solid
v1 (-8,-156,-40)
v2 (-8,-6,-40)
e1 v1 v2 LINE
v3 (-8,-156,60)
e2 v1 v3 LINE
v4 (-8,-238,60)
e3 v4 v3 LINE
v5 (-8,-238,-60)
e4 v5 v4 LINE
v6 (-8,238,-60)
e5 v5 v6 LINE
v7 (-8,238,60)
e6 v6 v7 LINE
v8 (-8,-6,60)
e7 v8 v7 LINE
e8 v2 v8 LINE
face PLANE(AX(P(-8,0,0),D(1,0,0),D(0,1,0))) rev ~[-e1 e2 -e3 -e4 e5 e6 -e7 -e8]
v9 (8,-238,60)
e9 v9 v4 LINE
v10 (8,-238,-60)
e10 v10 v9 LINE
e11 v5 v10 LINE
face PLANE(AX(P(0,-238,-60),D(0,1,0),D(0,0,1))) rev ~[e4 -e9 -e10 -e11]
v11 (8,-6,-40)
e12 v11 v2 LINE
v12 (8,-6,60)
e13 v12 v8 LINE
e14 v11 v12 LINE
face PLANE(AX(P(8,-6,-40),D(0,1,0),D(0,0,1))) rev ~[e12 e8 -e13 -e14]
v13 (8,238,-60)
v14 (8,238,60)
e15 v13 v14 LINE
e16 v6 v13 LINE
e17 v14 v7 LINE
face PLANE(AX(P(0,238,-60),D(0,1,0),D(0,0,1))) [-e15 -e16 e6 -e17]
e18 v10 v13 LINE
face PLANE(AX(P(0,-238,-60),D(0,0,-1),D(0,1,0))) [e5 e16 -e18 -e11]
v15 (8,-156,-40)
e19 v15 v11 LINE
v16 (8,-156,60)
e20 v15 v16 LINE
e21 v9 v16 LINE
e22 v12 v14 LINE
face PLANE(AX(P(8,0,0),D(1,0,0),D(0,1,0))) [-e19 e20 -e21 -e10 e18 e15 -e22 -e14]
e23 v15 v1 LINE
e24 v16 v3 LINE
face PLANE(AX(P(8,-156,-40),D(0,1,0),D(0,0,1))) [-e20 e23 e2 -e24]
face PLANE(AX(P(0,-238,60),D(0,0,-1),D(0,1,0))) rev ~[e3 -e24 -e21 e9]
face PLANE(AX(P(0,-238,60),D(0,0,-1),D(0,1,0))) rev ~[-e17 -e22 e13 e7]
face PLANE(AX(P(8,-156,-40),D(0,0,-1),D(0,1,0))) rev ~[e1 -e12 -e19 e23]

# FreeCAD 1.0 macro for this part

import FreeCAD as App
import Part
import Sketcher

V = App.Vector
Q = App.Units.Quantity


def add_polygon(sketch, points):
    """Adds a closed chain of lines whose ends are joined by coincident constraints."""
    first, n = sketch.GeometryCount, len(points)
    for a, b in zip(points, points[1:] + points[:1]):
        sketch.addGeometry(Part.LineSegment(App.Vector(*a, 0), App.Vector(*b, 0)), False)
    for i in range(n):
        sketch.addConstraint(Sketcher.Constraint("Coincident", first + i, 2, first + (i + 1) % n, 1))

doc = App.newDocument("Part")
params = doc.addObject("Spreadsheet::Sheet", "Params")
for row, (alias, value) in enumerate([
    ("sketch1_width", "476 mm"),
    ("sketch1_height", "120 mm"),
    ("pad1_length", "16 mm"),
    ("sketch2_width", "150 mm"),
    ("sketch2_height", "100 mm"),
], start=1):
    params.set(f"A{row}", alias)
    params.set(f"B{row}", "=" + value)
    params.setAlias(f"B{row}", alias)

body = doc.addObject("PartDesign::Body", "Body")

# Sketch on YZ plane
sketch1 = body.newObject("Sketcher::SketchObject", "Sketch")
sketch1.AttachmentSupport = (doc.getObject("YZ_Plane"), [""])
sketch1.MapMode = "FlatFace"
add_polygon(sketch1, [(-238, 60), (-238, -60), (238, -60), (238, 60)])  # lines 0-3
sketch1.addConstraint(Sketcher.Constraint("Vertical", 0))
sketch1.addConstraint(Sketcher.Constraint("Horizontal", 1))
sketch1.addConstraint(Sketcher.Constraint("Vertical", 2))
sketch1.addConstraint(Sketcher.Constraint("Horizontal", 3))
sketch1.addConstraint(Sketcher.Constraint("Symmetric", 0, 2, 2, 2, -1, 1))
sketch1.addConstraint(Sketcher.Constraint("DistanceX", 1, 1, 1, 2, Q("476 mm")))
sketch1.addConstraint(Sketcher.Constraint("DistanceY", 0, 2, 0, 1, Q("120 mm")))
sketch1.setExpression("Constraints[9]", "Params.sketch1_width")
sketch1.setExpression("Constraints[10]", "Params.sketch1_height")
pad1 = body.newObject("PartDesign::Pad", "Pad")
pad1.Profile = sketch1
pad1.setExpression("Length", "Params.pad1_length")
pad1.Midplane = True

# Sketch on YZ plane
sketch2 = body.newObject("Sketcher::SketchObject", "Sketch001")
sketch2.AttachmentSupport = (doc.getObject("YZ_Plane"), [""])
sketch2.MapMode = "FlatFace"
sketch2.AttachmentOffset = App.Placement(V(0, 0, 8), App.Rotation())
add_polygon(sketch2, [(-156, 60), (-156, -40), (-6, -40), (-6, 60)])  # lines 0-3
sketch2.addConstraint(Sketcher.Constraint("Vertical", 0))
sketch2.addConstraint(Sketcher.Constraint("Horizontal", 1))
sketch2.addConstraint(Sketcher.Constraint("Vertical", 2))
sketch2.addConstraint(Sketcher.Constraint("Horizontal", 3))
sketch2.addConstraint(Sketcher.Constraint("DistanceX", 1, 1, 1, 2, Q("150 mm")))
sketch2.addConstraint(Sketcher.Constraint("DistanceY", 0, 2, 0, 1, Q("100 mm")))
sketch2.addConstraint(Sketcher.Constraint("DistanceX", 0, 2, -1, 1, Q("156 mm")))
sketch2.addConstraint(Sketcher.Constraint("DistanceY", 0, 2, -1, 1, Q("40 mm")))
sketch2.setExpression("Constraints[8]", "Params.sketch2_width")
sketch2.setExpression("Constraints[9]", "Params.sketch2_height")
pocket1 = body.newObject("PartDesign::Pocket", "Pocket")
pocket1.Profile = sketch2
pocket1.Type = "ThroughAll"

doc.recompute()
